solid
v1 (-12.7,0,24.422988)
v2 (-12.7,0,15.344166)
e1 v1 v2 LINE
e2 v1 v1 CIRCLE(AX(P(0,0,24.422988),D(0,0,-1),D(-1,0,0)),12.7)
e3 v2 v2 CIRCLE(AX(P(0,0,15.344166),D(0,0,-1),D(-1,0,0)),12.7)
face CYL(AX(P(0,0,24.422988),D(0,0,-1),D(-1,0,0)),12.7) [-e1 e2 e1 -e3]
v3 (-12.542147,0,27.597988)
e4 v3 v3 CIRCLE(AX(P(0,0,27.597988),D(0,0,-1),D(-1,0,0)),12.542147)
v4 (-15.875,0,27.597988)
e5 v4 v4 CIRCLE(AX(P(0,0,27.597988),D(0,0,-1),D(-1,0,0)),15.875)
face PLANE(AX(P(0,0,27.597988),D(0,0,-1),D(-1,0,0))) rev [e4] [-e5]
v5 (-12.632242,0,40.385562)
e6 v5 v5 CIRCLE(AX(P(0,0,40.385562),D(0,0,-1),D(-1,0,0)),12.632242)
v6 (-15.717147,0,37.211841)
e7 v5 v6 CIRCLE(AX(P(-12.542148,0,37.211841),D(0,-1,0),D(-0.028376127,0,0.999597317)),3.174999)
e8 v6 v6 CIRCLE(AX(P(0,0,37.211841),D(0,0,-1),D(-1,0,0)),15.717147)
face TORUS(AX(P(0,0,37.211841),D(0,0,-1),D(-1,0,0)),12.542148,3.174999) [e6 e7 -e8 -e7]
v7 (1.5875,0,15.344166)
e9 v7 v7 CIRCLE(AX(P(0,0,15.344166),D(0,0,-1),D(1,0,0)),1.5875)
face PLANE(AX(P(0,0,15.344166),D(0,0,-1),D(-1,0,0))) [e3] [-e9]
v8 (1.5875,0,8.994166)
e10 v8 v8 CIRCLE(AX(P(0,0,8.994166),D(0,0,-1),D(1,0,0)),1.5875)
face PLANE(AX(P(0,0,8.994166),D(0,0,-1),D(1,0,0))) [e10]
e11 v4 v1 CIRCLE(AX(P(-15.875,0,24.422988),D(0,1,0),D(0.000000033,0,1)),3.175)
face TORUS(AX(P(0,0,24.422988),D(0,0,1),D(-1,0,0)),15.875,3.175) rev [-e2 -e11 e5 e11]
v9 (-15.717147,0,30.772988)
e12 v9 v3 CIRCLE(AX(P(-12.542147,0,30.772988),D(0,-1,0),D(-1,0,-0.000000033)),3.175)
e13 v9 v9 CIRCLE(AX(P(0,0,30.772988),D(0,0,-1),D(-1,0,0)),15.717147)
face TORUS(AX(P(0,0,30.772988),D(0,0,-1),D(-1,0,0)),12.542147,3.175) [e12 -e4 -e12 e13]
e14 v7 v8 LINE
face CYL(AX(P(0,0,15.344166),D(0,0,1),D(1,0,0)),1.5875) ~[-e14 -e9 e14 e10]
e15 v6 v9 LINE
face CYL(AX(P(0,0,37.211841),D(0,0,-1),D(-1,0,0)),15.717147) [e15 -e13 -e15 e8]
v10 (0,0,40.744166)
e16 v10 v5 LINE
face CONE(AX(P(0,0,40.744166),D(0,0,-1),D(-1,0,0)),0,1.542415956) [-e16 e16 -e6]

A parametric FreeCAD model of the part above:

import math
import FreeCAD as App
import Part
import Sketcher
Q = App.Units.Quantity

doc = App.newDocument("Part")
body = doc.addObject("PartDesign::Body", "Body")

# Sketch on XZ plane
sketch1 = body.newObject("Sketcher::SketchObject", "Sketch")
sketch1.AttachmentSupport = (doc.getObject("XZ_Plane"), [""])
sketch1.MapMode = "FlatFace"
sketch1.addGeometry(Part.LineSegment(App.Vector(-12.7, 15.3, 0), App.Vector(0, 15.3, 0)), False)
sketch1.addGeometry(Part.LineSegment(App.Vector(0, 15.3, 0), App.Vector(0, 40.7, 0)), False)
sketch1.addGeometry(Part.LineSegment(App.Vector(0, 40.7, 0), App.Vector(-12.6, 40.4, 0)), False)
sketch1.addGeometry(Part.ArcOfCircle(Part.Circle(App.Vector(-12.5, 37.2, 0), App.Vector(0, 0, 1), 3.2), math.radians(92), math.radians(180)), False)
sketch1.addGeometry(Part.LineSegment(App.Vector(-15.7, 37.2, 0), App.Vector(-15.7, 30.8, 0)), False)
sketch1.addGeometry(Part.ArcOfCircle(Part.Circle(App.Vector(-12.5, 30.8, 0), App.Vector(0, 0, 1), 3.2), math.radians(-180), math.radians(-90)), False)
sketch1.addGeometry(Part.LineSegment(App.Vector(-12.5, 27.6, 0), App.Vector(-15.9, 27.6, 0)), False)
sketch1.addGeometry(Part.ArcOfCircle(Part.Circle(App.Vector(-15.9, 24.4, 0), App.Vector(0, 0, 1), 3.2), math.radians(0), math.radians(90)), False)
sketch1.addGeometry(Part.LineSegment(App.Vector(-12.7, 24.4, 0), App.Vector(-12.7, 15.3, 0)), False)
sketch1.addConstraint(Sketcher.Constraint("Coincident", 0, 2, 1, 1))
sketch1.addConstraint(Sketcher.Constraint("Coincident", 1, 2, 2, 1))
sketch1.addConstraint(Sketcher.Constraint("Tangent", 2, 2, 3, 1))
sketch1.addConstraint(Sketcher.Constraint("Tangent", 3, 2, 4, 1))
sketch1.addConstraint(Sketcher.Constraint("Tangent", 4, 2, 5, 1))
sketch1.addConstraint(Sketcher.Constraint("Tangent", 5, 2, 6, 1))
sketch1.addConstraint(Sketcher.Constraint("Tangent", 6, 2, 7, 2))
sketch1.addConstraint(Sketcher.Constraint("Tangent", 7, 1, 8, 1))
sketch1.addConstraint(Sketcher.Constraint("Coincident", 8, 2, 0, 1))
sketch1.addConstraint(Sketcher.Constraint("Horizontal", 0))
sketch1.addConstraint(Sketcher.Constraint("Vertical", 1))
sketch1.addConstraint(Sketcher.Constraint("Vertical", 4))
sketch1.addConstraint(Sketcher.Constraint("Horizontal", 6))
sketch1.addConstraint(Sketcher.Constraint("Vertical", 8))
sketch1.addConstraint(Sketcher.Constraint("Equal", 3, 5))
sketch1.addConstraint(Sketcher.Constraint("Equal", 5, 7))
sketch1.addConstraint(Sketcher.Constraint("PointOnObject", 0, 2, -2))
sketch1.addConstraint(Sketcher.Constraint("DistanceY", 1, 1, 1, 2, Q("1 in")))
sketch1.addConstraint(Sketcher.Constraint("DistanceX", 0, 1, 0, 2, Q("0.5 in")))
sketch1.addConstraint(Sketcher.Constraint("Radius", 3, Q("0.125 in")))
sketch1.addConstraint(Sketcher.Constraint("Distance", 2, 12.637331))
sketch1.addConstraint(Sketcher.Constraint("DistanceX", 6, 2, 6, 1, 3.332853))
sketch1.addConstraint(Sketcher.Constraint("DistanceY", 4, 2, 4, 1, 6.438853))
sketch1.addConstraint(Sketcher.Constraint("DistanceY", -1, 1, 3, 3, 37.211841))
revolution = body.newObject("PartDesign::Revolution", "Revolution")
revolution.Profile = sketch1
revolution.ReferenceAxis = (sketch1, ["V_Axis"])
revolution.Angle = 360

# Sketch on XY plane
sketch2 = body.newObject("Sketcher::SketchObject", "Sketch001")
sketch2.AttachmentSupport = (doc.getObject("XY_Plane"), [""])
sketch2.MapMode = "FlatFace"
sketch2.AttachmentOffset = App.Placement(App.Vector(0, 0, 15.344166), App.Rotation())
sketch2.addGeometry(Part.Circle(App.Vector(0, 0, 0), App.Vector(0, 0, 1), 1.6), False)
sketch2.addConstraint(Sketcher.Constraint("Coincident", 0, 3, -1, 1))
sketch2.addConstraint(Sketcher.Constraint("Diameter", 0, Q("0.125 in")))
pad1 = body.newObject("PartDesign::Pad", "Pad")
pad1.Profile = sketch2
pad1.Length = Q("0.25 in")
pad1.Reversed = True

doc.recompute()
